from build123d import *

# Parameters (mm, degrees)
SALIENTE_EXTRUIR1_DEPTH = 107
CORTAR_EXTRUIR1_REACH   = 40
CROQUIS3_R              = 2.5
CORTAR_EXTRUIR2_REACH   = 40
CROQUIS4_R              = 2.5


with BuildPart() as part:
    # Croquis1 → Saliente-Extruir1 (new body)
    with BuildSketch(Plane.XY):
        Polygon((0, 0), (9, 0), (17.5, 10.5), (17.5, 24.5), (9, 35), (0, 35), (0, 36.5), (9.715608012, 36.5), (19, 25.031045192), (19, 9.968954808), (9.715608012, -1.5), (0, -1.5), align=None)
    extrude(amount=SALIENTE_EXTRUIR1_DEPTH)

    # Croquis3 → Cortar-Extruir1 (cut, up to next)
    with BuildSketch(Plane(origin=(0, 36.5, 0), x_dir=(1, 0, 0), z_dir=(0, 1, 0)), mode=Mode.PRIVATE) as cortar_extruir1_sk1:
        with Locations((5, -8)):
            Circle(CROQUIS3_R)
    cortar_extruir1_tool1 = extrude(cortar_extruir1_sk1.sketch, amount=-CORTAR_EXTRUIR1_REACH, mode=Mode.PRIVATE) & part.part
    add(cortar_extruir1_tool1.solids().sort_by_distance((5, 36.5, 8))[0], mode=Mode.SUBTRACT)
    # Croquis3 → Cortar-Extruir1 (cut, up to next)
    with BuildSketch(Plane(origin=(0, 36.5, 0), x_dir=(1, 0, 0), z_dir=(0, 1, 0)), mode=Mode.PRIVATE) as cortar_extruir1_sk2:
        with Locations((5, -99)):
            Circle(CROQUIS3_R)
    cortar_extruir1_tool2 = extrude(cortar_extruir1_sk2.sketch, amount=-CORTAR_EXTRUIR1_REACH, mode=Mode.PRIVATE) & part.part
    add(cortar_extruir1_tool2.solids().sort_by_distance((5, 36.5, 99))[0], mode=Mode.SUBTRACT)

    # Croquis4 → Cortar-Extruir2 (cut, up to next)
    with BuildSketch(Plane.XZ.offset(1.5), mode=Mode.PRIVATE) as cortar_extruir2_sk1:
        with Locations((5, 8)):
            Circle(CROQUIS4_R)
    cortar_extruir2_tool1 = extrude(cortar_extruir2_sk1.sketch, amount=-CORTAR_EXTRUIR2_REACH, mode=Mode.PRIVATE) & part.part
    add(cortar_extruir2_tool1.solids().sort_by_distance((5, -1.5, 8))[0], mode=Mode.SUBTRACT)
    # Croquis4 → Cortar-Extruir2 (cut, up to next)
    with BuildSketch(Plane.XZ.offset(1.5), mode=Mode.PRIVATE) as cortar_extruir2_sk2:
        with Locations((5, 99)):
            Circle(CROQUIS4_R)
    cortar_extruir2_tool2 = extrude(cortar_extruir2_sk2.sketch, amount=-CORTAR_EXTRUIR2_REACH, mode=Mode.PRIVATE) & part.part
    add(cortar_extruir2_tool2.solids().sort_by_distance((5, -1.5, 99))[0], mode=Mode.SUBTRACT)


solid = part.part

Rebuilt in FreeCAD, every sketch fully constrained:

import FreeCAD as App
import Part
import Sketcher

V = App.Vector

doc = App.newDocument("Part")
body = doc.addObject("PartDesign::Body", "Body")

# Sketch on XY plane
sketch1 = body.newObject("Sketcher::SketchObject", "Sketch")
sketch1.AttachmentSupport = (doc.getObject("XY_Plane"), [""])
sketch1.MapMode = "FlatFace"
sketch1.addGeometry(Part.LineSegment(V(9, 0, 0), V(0, 0, 0)), False)
sketch1.addGeometry(Part.LineSegment(V(0, 0, 0), V(0, -1.5, 0)), False)
sketch1.addGeometry(Part.LineSegment(V(0, -1.5, 0), V(9.7, -1.5, 0)), False)
sketch1.addGeometry(Part.LineSegment(V(9.7, -1.5, 0), V(19, 10, 0)), False)
sketch1.addGeometry(Part.LineSegment(V(19, 10, 0), V(19, 25, 0)), False)
sketch1.addGeometry(Part.LineSegment(V(19, 25, 0), V(9.7, 36.5, 0)), False)
sketch1.addGeometry(Part.LineSegment(V(9.7, 36.5, 0), V(0, 36.5, 0)), False)
sketch1.addGeometry(Part.LineSegment(V(0, 36.5, 0), V(0, 35, 0)), False)
sketch1.addGeometry(Part.LineSegment(V(0, 35, 0), V(9, 35, 0)), False)
sketch1.addGeometry(Part.LineSegment(V(9, 35, 0), V(17.5, 24.5, 0)), False)
sketch1.addGeometry(Part.LineSegment(V(17.5, 24.5, 0), V(17.5, 10.5, 0)), False)
sketch1.addGeometry(Part.LineSegment(V(17.5, 10.5, 0), V(9, 0, 0)), False)
sketch1.addConstraint(Sketcher.Constraint("Coincident", 0, 2, 1, 1))
sketch1.addConstraint(Sketcher.Constraint("Coincident", 1, 2, 2, 1))
sketch1.addConstraint(Sketcher.Constraint("Coincident", 2, 2, 3, 1))
sketch1.addConstraint(Sketcher.Constraint("Coincident", 3, 2, 4, 1))
sketch1.addConstraint(Sketcher.Constraint("Coincident", 4, 2, 5, 1))
sketch1.addConstraint(Sketcher.Constraint("Coincident", 5, 2, 6, 1))
sketch1.addConstraint(Sketcher.Constraint("Coincident", 6, 2, 7, 1))
sketch1.addConstraint(Sketcher.Constraint("Coincident", 7, 2, 8, 1))
sketch1.addConstraint(Sketcher.Constraint("Coincident", 8, 2, 9, 1))
sketch1.addConstraint(Sketcher.Constraint("Coincident", 9, 2, 10, 1))
sketch1.addConstraint(Sketcher.Constraint("Coincident", 10, 2, 11, 1))
sketch1.addConstraint(Sketcher.Constraint("Coincident", 11, 2, 0, 1))
sketch1.addConstraint(Sketcher.Constraint("Horizontal", 0))
sketch1.addConstraint(Sketcher.Constraint("Vertical", 1))
sketch1.addConstraint(Sketcher.Constraint("Horizontal", 2))
sketch1.addConstraint(Sketcher.Constraint("Vertical", 4))
sketch1.addConstraint(Sketcher.Constraint("Horizontal", 6))
sketch1.addConstraint(Sketcher.Constraint("Vertical", 7))
sketch1.addConstraint(Sketcher.Constraint("Horizontal", 8))
sketch1.addConstraint(Sketcher.Constraint("Vertical", 10))
sketch1.addConstraint(Sketcher.Constraint("Coincident", 0, 2, -1, 1))
sketch1.addConstraint(Sketcher.Constraint("PointOnObject", 6, 2, -2))
sketch1.addConstraint(Sketcher.Constraint("Parallel", 5, 9))
sketch1.addConstraint(Sketcher.Constraint("Parallel", 3, 11))
sketch1.addConstraint(Sketcher.Constraint("Vertical", 2, 2, 5, 2))
sketch1.addConstraint(Sketcher.Constraint("Vertical", 8, 2, 11, 2))
sketch1.addConstraint(Sketcher.Constraint("Equal", 1, 7))
sketch1.addConstraint(Sketcher.Constraint("Equal", 3, 5))
sketch1.addConstraint(Sketcher.Constraint("DistanceX", 0, 2, 0, 1, 9.0))
sketch1.addConstraint(Sketcher.Constraint("DistanceY", 10, 2, 10, 1, 14.0))
sketch1.addConstraint(Sketcher.Constraint("DistanceY", 1, 2, 1, 1, 1.5))
sketch1.addConstraint(Sketcher.Constraint("DistanceX", -1, 1, 3, 2, 19.0))
sketch1.addConstraint(Sketcher.Constraint("DistanceY", -1, 1, 7, 2, 35.0))
sketch1.addConstraint(Sketcher.Constraint("DistanceX", -1, 1, 9, 2, 17.5))
sketch1.addConstraint(Sketcher.Constraint("DistanceX", 2, 1, 2, 2, 9.715608))
pad1 = body.newObject("PartDesign::Pad", "Pad")
pad1.Profile = sketch1
pad1.Length = 107

# Sketch on XZ plane
sketch2 = body.newObject("Sketcher::SketchObject", "Sketch001")
sketch2.AttachmentSupport = (doc.getObject("XZ_Plane"), [""])
sketch2.MapMode = "FlatFace"
sketch2.AttachmentOffset = App.Placement(V(0, 0, -36.5), App.Rotation())
sketch2.addGeometry(Part.Circle(V(5, 8, 0), V(0, 0, 1), 2.5), False)
sketch2.addConstraint(Sketcher.Constraint("Diameter", 0, 5.0))
sketch2.addConstraint(Sketcher.Constraint("DistanceX", -1, 1, 0, 3, 5.0))
sketch2.addConstraint(Sketcher.Constraint("DistanceY", -1, 1, 0, 3, 8.0))
pocket1 = body.newObject("PartDesign::Pocket", "Pocket")
pocket1.Profile = sketch2
pocket1.Type = "UpToFirst"
pocket1.Reversed = True

# Sketch on XZ plane
sketch3 = body.newObject("Sketcher::SketchObject", "Sketch002")
sketch3.AttachmentSupport = (doc.getObject("XZ_Plane"), [""])
sketch3.MapMode = "FlatFace"
sketch3.AttachmentOffset = App.Placement(V(0, 0, -36.5), App.Rotation())
sketch3.addGeometry(Part.Circle(V(5, 99, 0), V(0, 0, 1), 2.5), False)
sketch3.addConstraint(Sketcher.Constraint("Diameter", 0, 5.0))
sketch3.addConstraint(Sketcher.Constraint("DistanceX", -1, 1, 0, 3, 5.0))
sketch3.addConstraint(Sketcher.Constraint("DistanceY", -1, 1, 0, 3, 99.0))
pocket2 = body.newObject("PartDesign::Pocket", "Pocket001")
pocket2.Profile = sketch3
pocket2.Type = "UpToFirst"
pocket2.Reversed = True

# Sketch on XZ plane
sketch4 = body.newObject("Sketcher::SketchObject", "Sketch003")
sketch4.AttachmentSupport = (doc.getObject("XZ_Plane"), [""])
sketch4.MapMode = "FlatFace"
sketch4.AttachmentOffset = App.Placement(V(0, 0, 1.5), App.Rotation())
sketch4.addGeometry(Part.Circle(V(5, 8, 0), V(0, 0, 1), 2.5), False)
sketch4.addConstraint(Sketcher.Constraint("Diameter", 0, 5.0))
sketch4.addConstraint(Sketcher.Constraint("DistanceX", -1, 1, 0, 3, 5.0))
sketch4.addConstraint(Sketcher.Constraint("DistanceY", -1, 1, 0, 3, 8.0))
pocket3 = body.newObject("PartDesign::Pocket", "Pocket002")
pocket3.Profile = sketch4
pocket3.Type = "UpToFirst"

# Sketch on XZ plane
sketch5 = body.newObject("Sketcher::SketchObject", "Sketch004")
sketch5.AttachmentSupport = (doc.getObject("XZ_Plane"), [""])
sketch5.MapMode = "FlatFace"
sketch5.AttachmentOffset = App.Placement(V(0, 0, 1.5), App.Rotation())
sketch5.addGeometry(Part.Circle(V(5, 99, 0), V(0, 0, 1), 2.5), False)
sketch5.addConstraint(Sketcher.Constraint("Diameter", 0, 5.0))
sketch5.addConstraint(Sketcher.Constraint("DistanceX", -1, 1, 0, 3, 5.0))
sketch5.addConstraint(Sketcher.Constraint("DistanceY", -1, 1, 0, 3, 99.0))
pocket4 = body.newObject("PartDesign::Pocket", "Pocket003")
pocket4.Profile = sketch5
pocket4.Type = "UpToFirst"

doc.recompute()
